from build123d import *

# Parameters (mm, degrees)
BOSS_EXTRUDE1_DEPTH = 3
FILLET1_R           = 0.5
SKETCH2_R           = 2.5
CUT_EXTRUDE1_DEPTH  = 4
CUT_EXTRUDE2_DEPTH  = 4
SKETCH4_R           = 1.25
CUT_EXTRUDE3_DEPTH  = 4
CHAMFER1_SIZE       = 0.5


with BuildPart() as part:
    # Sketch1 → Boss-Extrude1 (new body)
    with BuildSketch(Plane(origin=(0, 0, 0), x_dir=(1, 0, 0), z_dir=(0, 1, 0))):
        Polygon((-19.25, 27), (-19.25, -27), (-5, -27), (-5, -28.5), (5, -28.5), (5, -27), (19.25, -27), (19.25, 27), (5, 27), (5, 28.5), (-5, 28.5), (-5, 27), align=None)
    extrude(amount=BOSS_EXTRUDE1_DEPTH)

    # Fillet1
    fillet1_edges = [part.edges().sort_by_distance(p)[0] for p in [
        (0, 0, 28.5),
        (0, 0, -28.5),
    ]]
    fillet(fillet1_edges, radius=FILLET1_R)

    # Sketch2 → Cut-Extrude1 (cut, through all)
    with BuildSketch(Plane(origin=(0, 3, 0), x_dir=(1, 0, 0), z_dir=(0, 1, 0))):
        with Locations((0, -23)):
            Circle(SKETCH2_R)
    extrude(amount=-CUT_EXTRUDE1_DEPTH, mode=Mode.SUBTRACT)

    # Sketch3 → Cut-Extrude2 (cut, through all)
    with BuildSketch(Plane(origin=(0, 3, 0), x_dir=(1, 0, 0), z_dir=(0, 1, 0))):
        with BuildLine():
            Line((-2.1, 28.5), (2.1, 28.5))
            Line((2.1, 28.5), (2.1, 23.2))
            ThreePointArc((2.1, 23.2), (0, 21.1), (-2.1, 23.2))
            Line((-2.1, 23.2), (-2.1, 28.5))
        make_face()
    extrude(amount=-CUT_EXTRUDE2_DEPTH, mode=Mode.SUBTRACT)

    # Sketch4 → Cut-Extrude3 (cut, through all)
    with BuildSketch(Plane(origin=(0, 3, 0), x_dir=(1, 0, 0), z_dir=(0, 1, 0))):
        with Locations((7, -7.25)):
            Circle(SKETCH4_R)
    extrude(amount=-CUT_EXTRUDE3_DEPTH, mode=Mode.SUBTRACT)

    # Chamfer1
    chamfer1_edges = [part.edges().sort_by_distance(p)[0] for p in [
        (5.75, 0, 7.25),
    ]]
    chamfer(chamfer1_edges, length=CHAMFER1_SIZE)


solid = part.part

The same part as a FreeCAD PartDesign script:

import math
import FreeCAD as App
import Part
import Sketcher
Q = App.Units.Quantity


def edges_at(feature, points):
    """Names of the edges that pass closest to the given points."""
    edges = feature.Shape.Edges
    near = lambda p: min(range(len(edges)), key=lambda i: edges[i].distToShape(Part.Vertex(*p))[0])
    return sorted({f"Edge{near(p) + 1}" for p in points})


def add_polygon(sketch, points):
    """Adds a closed chain of lines whose ends are joined by coincident constraints."""
    first, n = sketch.GeometryCount, len(points)
    for a, b in zip(points, points[1:] + points[:1]):
        sketch.addGeometry(Part.LineSegment(App.Vector(*a, 0), App.Vector(*b, 0)), False)
    for i in range(n):
        sketch.addConstraint(Sketcher.Constraint("Coincident", first + i, 2, first + (i + 1) % n, 1))

doc = App.newDocument("Part")
body = doc.addObject("PartDesign::Body", "Body")

sketch1 = doc.addObject("Sketcher::SketchObject", "Sketch")
body.addObject(sketch1)
sketch1.AttachmentSupport = (doc.XZ_Plane, [""])
sketch1.MapMode = "FlatFace"
add_polygon(sketch1, [(-19.25, -27), (-19.25, 27), (-5, 27), (-5, 28.5), (5, 28.5), (5, 27), (19.25, 27), (19.25, -27), (5, -27), (5, -28.5), (-5, -28.5), (-5, -27)])
sketch1.addConstraint(Sketcher.Constraint("Vertical", 0))
sketch1.addConstraint(Sketcher.Constraint("Horizontal", 1))
sketch1.addConstraint(Sketcher.Constraint("Vertical", 2))
sketch1.addConstraint(Sketcher.Constraint("Horizontal", 3))
sketch1.addConstraint(Sketcher.Constraint("Vertical", 4))
sketch1.addConstraint(Sketcher.Constraint("Horizontal", 5))
sketch1.addConstraint(Sketcher.Constraint("Vertical", 6))
sketch1.addConstraint(Sketcher.Constraint("Horizontal", 7))
sketch1.addConstraint(Sketcher.Constraint("Vertical", 8))
sketch1.addConstraint(Sketcher.Constraint("Horizontal", 9))
sketch1.addConstraint(Sketcher.Constraint("Vertical", 10))
sketch1.addConstraint(Sketcher.Constraint("Horizontal", 11))
sketch1.addConstraint(Sketcher.Constraint("Symmetric", 0, 2, 6, 2, -1, 1))
sketch1.addConstraint(Sketcher.Constraint("Symmetric", 2, 2, 8, 2, -1, 1))
sketch1.addConstraint(Sketcher.Constraint("Symmetric", 4, 2, 10, 2, -1, 1))
sketch1.addConstraint(Sketcher.Constraint("Symmetric", 1, 2, 4, 2, -2))
sketch1.addConstraint(Sketcher.Constraint("DistanceX", 3, 1, 3, 2, Q("10 mm")))
sketch1.addConstraint(Sketcher.Constraint("DistanceY", 0, 1, 0, 2, Q("54 mm")))
sketch1.addConstraint(Sketcher.Constraint("DistanceY", 2, 1, 2, 2, Q("1.5 mm")))
sketch1.addConstraint(Sketcher.Constraint("DistanceX", 1, 1, 1, 2, Q("14.25 mm")))
pad1 = doc.addObject("PartDesign::Pad", "Pad")
body.addObject(pad1)
pad1.Profile = sketch1
pad1.Length = 3
pad1.Reversed = True
doc.recompute()

fillet = doc.addObject("PartDesign::Fillet", "Fillet")
body.addObject(fillet)
fillet.Base = (pad1, edges_at(pad1, [(0, 0, 28.5), (0, 0, -28.5)]))
fillet.Radius = 0.5

sketch2 = doc.addObject("Sketcher::SketchObject", "Sketch001")
body.addObject(sketch2)
sketch2.AttachmentSupport = (doc.XZ_Plane, [""])
sketch2.MapMode = "FlatFace"
sketch2.AttachmentOffset = App.Placement(App.Vector(0, 0, -3), App.Rotation())
sketch2.addGeometry(Part.Circle(App.Vector(0, 23, 0), App.Vector(0, 0, 1), 2.5), False)
sketch2.addConstraint(Sketcher.Constraint("PointOnObject", 0, 3, -2))
sketch2.addConstraint(Sketcher.Constraint("Diameter", 0, Q("5 mm")))
sketch2.addConstraint(Sketcher.Constraint("DistanceY", -1, 1, 0, 3, Q("23 mm")))
pocket1 = doc.addObject("PartDesign::Pocket", "Pocket")
body.addObject(pocket1)
pocket1.Profile = sketch2
pocket1.Type = "ThroughAll"
pocket1.Reversed = True

sketch3 = doc.addObject("Sketcher::SketchObject", "Sketch002")
body.addObject(sketch3)
sketch3.AttachmentSupport = (doc.XZ_Plane, [""])
sketch3.MapMode = "FlatFace"
sketch3.AttachmentOffset = App.Placement(App.Vector(0, 0, -3), App.Rotation())
sketch3.addGeometry(Part.LineSegment(App.Vector(2.1, -28.5, 0), App.Vector(-2.1, -28.5, 0)), False)
sketch3.addGeometry(Part.LineSegment(App.Vector(-2.1, -28.5, 0), App.Vector(-2.1, -23.2, 0)), False)
sketch3.addGeometry(Part.ArcOfCircle(Part.Circle(App.Vector(0, -23.2, 0), App.Vector(0, 0, 1), 2.1), math.radians(0), math.radians(180)), False)
sketch3.addGeometry(Part.LineSegment(App.Vector(2.1, -23.2, 0), App.Vector(2.1, -28.5, 0)), False)
sketch3.addConstraint(Sketcher.Constraint("Coincident", 0, 2, 1, 1))
sketch3.addConstraint(Sketcher.Constraint("Tangent", 1, 2, 2, 2))
sketch3.addConstraint(Sketcher.Constraint("Tangent", 2, 1, 3, 1))
sketch3.addConstraint(Sketcher.Constraint("Coincident", 3, 2, 0, 1))
sketch3.addConstraint(Sketcher.Constraint("Horizontal", 0))
sketch3.addConstraint(Sketcher.Constraint("Vertical", 1))
sketch3.addConstraint(Sketcher.Constraint("Vertical", 3))
sketch3.addConstraint(Sketcher.Constraint("PointOnObject", 2, 3, -2))
sketch3.addConstraint(Sketcher.Constraint("Radius", 2, Q("2.1 mm")))
sketch3.addConstraint(Sketcher.Constraint("DistanceY", 1, 1, 1, 2, Q("5.3 mm")))
sketch3.addConstraint(Sketcher.Constraint("DistanceY", 2, 3, -1, 1, Q("23.2 mm")))
pocket2 = doc.addObject("PartDesign::Pocket", "Pocket001")
body.addObject(pocket2)
pocket2.Profile = sketch3
pocket2.Type = "ThroughAll"
pocket2.Reversed = True

sketch4 = doc.addObject("Sketcher::SketchObject", "Sketch003")
body.addObject(sketch4)
sketch4.AttachmentSupport = (doc.XZ_Plane, [""])
sketch4.MapMode = "FlatFace"
sketch4.AttachmentOffset = App.Placement(App.Vector(0, 0, -3), App.Rotation())
sketch4.addGeometry(Part.Circle(App.Vector(7, 7.25, 0), App.Vector(0, 0, 1), 1.25), False)
sketch4.addConstraint(Sketcher.Constraint("Diameter", 0, Q("2.5 mm")))
sketch4.addConstraint(Sketcher.Constraint("DistanceX", -1, 1, 0, 3, Q("7 mm")))
sketch4.addConstraint(Sketcher.Constraint("DistanceY", -1, 1, 0, 3, Q("7.25 mm")))
pocket3 = doc.addObject("PartDesign::Pocket", "Pocket002")
body.addObject(pocket3)
pocket3.Profile = sketch4
pocket3.Type = "ThroughAll"
pocket3.Reversed = True
doc.recompute()

chamfer = doc.addObject("PartDesign::Chamfer", "Chamfer")
body.addObject(chamfer)
chamfer.Base = (pocket3, edges_at(pocket3, [(5.75, 0, 7.25)]))
chamfer.Size = 0.5

doc.recompute()
